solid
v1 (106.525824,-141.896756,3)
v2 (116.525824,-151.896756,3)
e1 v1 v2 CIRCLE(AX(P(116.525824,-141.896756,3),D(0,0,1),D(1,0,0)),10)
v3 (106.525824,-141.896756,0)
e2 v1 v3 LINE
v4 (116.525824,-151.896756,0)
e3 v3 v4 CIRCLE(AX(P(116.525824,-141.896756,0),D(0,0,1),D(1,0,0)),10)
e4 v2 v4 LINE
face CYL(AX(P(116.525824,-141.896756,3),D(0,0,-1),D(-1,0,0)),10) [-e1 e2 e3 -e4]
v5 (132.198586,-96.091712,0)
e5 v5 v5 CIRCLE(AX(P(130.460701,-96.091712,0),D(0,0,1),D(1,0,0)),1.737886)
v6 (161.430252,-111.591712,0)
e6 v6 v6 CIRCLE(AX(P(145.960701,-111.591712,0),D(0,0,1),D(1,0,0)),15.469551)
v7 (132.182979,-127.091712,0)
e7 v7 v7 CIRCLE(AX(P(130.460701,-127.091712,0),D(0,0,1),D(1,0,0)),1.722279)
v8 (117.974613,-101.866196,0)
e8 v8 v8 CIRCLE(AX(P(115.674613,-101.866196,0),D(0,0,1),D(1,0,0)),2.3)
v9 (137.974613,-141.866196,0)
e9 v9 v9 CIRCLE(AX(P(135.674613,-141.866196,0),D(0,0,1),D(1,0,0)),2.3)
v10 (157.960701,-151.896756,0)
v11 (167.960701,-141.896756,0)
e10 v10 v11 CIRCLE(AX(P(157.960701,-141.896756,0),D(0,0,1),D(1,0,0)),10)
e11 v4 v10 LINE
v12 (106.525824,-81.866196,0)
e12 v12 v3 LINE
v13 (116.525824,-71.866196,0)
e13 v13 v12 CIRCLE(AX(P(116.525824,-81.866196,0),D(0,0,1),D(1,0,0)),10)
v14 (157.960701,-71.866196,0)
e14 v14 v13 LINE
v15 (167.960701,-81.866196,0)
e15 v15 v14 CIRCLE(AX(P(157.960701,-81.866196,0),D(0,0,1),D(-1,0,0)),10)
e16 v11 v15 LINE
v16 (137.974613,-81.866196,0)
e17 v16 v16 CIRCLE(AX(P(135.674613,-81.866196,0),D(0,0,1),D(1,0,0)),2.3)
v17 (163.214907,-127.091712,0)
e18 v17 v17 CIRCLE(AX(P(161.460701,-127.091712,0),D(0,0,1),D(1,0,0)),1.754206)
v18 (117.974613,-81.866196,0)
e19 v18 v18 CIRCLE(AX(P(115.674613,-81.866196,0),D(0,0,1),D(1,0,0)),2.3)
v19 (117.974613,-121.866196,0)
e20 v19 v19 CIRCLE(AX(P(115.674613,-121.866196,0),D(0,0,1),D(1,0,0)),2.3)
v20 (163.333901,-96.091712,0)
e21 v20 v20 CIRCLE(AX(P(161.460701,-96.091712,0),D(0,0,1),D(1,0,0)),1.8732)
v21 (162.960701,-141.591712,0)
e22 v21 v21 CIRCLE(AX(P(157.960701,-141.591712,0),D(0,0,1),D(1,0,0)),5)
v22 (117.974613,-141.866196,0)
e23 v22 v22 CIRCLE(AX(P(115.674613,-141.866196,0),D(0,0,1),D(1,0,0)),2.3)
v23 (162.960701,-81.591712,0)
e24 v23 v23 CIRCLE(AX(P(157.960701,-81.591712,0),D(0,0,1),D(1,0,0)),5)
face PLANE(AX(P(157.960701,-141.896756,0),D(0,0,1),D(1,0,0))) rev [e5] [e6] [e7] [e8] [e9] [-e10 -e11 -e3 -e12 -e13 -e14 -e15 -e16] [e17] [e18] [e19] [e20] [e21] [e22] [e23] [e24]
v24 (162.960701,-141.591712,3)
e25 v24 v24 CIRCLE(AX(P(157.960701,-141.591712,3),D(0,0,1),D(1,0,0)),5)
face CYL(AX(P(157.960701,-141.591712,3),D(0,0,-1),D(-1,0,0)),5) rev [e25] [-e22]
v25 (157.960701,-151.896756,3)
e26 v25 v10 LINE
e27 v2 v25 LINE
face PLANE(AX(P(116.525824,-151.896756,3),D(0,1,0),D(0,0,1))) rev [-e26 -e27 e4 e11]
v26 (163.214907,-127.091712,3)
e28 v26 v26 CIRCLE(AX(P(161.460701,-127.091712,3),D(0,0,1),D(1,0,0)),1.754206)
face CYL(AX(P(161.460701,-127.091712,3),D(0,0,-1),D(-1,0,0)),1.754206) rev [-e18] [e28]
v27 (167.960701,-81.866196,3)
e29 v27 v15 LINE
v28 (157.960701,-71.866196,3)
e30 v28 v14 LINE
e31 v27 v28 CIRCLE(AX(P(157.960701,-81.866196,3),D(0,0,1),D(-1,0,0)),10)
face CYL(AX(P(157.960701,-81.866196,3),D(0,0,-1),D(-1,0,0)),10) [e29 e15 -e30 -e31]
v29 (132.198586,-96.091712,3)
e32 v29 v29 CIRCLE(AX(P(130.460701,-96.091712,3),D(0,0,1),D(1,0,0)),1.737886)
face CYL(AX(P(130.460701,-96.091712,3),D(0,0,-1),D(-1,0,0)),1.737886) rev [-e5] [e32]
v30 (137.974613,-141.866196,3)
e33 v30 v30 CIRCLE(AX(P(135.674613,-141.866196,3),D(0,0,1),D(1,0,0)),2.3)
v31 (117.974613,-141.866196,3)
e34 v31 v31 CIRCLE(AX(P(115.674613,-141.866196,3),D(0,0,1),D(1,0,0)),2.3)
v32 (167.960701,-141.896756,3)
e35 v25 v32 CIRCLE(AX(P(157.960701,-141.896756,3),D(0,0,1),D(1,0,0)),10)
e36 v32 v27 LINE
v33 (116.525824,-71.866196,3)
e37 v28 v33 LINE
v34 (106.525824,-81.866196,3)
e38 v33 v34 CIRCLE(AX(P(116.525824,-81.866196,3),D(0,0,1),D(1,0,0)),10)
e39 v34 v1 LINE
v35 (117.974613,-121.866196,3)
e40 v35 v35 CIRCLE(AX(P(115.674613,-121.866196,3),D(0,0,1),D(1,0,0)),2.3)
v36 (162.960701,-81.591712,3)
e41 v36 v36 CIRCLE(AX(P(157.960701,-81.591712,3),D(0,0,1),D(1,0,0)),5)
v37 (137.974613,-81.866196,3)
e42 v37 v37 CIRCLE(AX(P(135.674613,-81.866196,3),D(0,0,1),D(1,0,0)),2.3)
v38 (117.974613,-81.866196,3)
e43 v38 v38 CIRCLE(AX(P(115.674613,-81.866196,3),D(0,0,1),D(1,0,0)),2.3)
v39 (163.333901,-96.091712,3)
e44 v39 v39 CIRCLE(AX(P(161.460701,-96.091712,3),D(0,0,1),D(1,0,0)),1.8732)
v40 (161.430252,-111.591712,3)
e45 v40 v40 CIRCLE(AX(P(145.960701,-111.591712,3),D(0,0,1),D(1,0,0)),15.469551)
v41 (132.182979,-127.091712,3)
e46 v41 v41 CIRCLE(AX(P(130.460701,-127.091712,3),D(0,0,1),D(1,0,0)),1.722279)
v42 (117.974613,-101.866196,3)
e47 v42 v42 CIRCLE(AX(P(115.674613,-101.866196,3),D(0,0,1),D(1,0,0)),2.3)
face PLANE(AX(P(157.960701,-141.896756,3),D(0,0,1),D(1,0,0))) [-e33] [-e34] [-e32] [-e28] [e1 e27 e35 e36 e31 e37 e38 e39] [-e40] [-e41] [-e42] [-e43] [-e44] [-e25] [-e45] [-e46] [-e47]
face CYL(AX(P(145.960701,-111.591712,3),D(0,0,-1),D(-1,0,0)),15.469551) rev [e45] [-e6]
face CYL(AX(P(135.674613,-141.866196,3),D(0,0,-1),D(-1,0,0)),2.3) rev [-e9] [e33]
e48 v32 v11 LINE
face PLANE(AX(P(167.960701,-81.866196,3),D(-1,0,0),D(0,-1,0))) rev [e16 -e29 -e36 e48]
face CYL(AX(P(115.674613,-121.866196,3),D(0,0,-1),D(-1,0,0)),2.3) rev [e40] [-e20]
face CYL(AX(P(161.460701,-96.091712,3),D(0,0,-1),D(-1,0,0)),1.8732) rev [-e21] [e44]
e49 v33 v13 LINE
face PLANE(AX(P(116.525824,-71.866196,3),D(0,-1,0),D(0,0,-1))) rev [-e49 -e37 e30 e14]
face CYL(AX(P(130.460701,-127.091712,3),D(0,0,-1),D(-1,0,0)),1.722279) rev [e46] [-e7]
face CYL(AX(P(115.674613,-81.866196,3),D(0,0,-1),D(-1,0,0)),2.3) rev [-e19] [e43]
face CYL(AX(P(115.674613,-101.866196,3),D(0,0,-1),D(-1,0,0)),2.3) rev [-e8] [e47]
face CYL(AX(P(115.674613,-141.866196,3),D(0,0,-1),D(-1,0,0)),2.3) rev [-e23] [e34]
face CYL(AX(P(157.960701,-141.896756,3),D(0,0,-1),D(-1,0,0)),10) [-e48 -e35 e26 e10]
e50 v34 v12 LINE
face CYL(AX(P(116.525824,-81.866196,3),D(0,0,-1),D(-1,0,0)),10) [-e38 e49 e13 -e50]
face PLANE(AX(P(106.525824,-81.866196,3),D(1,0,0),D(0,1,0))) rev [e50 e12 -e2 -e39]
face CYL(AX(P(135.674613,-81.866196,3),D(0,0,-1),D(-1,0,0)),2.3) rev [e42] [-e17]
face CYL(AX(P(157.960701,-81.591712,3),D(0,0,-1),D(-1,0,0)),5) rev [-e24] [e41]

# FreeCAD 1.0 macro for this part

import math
import FreeCAD as App
import Part
import Sketcher

V = App.Vector

doc = App.newDocument("Part")
params = doc.addObject("Spreadsheet::Sheet", "Params")
for row, (alias, value) in enumerate([
    ("sketch1_diameter", "10 mm"),
    ("sketch1_radius", "10 mm"),
    ("sketch1_diameter2", "4.6 mm"),
    ("pad1_length", "3 mm"),
], start=1):
    params.set(f"A{row}", alias)
    params.set(f"B{row}", "=" + value)
    params.setAlias(f"B{row}", alias)

body = doc.addObject("PartDesign::Body", "Body")

sketch1 = body.newObject("Sketcher::SketchObject", "Sketch")
sketch1.AttachmentSupport = (doc.getObject("XY_Plane"), [""])
sketch1.MapMode = "FlatFace"
sketch1.addGeometry(Part.LineSegment(V(157.960701, -71.866196, 0), V(116.525824, -71.866196, 0)), False)
sketch1.addGeometry(Part.ArcOfCircle(Part.Circle(V(116.525824, -81.866196, 0), V(0, 0, 1), 10), math.radians(90), math.radians(180)), False)
sketch1.addGeometry(Part.LineSegment(V(106.525824, -81.866196, 0), V(106.525824, -141.896756, 0)), False)
sketch1.addGeometry(Part.ArcOfCircle(Part.Circle(V(116.525824, -141.896756, 0), V(0, 0, 1), 10), math.radians(180), math.radians(270)), False)
sketch1.addGeometry(Part.LineSegment(V(116.525824, -151.896756, 0), V(157.960701, -151.896756, 0)), False)
sketch1.addGeometry(Part.ArcOfCircle(Part.Circle(V(157.960701, -141.896756, 0), V(0, 0, 1), 10), math.radians(-90), math.radians(0)), False)
sketch1.addGeometry(Part.LineSegment(V(167.960701, -141.896756, 0), V(167.960701, -81.866196, 0)), False)
sketch1.addGeometry(Part.ArcOfCircle(Part.Circle(V(157.960701, -81.866196, 0), V(0, 0, 1), 10), math.radians(0), math.radians(90)), False)
sketch1.addGeometry(Part.Circle(V(157.960701, -141.591712, 0), V(0, 0, 1), 5), False)
sketch1.addGeometry(Part.Circle(V(161.460701, -127.091712, 0), V(0, 0, 1), 1.754206), False)
sketch1.addGeometry(Part.Circle(V(145.960701, -111.591712, 0), V(0, 0, 1), 15.469551), False)
sketch1.addGeometry(Part.Circle(V(135.674613, -141.866196, 0), V(0, 0, 1), 2.3), False)
sketch1.addGeometry(Part.Circle(V(115.674613, -141.866196, 0), V(0, 0, 1), 2.3), False)
sketch1.addGeometry(Part.Circle(V(130.460701, -127.091712, 0), V(0, 0, 1), 1.722279), False)
sketch1.addGeometry(Part.Circle(V(115.674613, -121.866196, 0), V(0, 0, 1), 2.3), False)
sketch1.addGeometry(Part.Circle(V(161.460701, -96.091712, 0), V(0, 0, 1), 1.8732), False)
sketch1.addGeometry(Part.Circle(V(157.960701, -81.591712, 0), V(0, 0, 1), 5), False)
sketch1.addGeometry(Part.Circle(V(130.460701, -96.091712, 0), V(0, 0, 1), 1.737886), False)
sketch1.addGeometry(Part.Circle(V(115.674613, -101.866196, 0), V(0, 0, 1), 2.3), False)
sketch1.addGeometry(Part.Circle(V(135.674613, -81.866196, 0), V(0, 0, 1), 2.3), False)
sketch1.addGeometry(Part.Circle(V(115.674613, -81.866196, 0), V(0, 0, 1), 2.3), False)
sketch1.addConstraint(Sketcher.Constraint("Tangent", 0, 2, 1, 1))
sketch1.addConstraint(Sketcher.Constraint("Tangent", 1, 2, 2, 1))
sketch1.addConstraint(Sketcher.Constraint("Tangent", 2, 2, 3, 1))
sketch1.addConstraint(Sketcher.Constraint("Tangent", 3, 2, 4, 1))
sketch1.addConstraint(Sketcher.Constraint("Tangent", 4, 2, 5, 1))
sketch1.addConstraint(Sketcher.Constraint("Tangent", 5, 2, 6, 1))
sketch1.addConstraint(Sketcher.Constraint("Tangent", 6, 2, 7, 1))
sketch1.addConstraint(Sketcher.Constraint("Tangent", 7, 2, 0, 1))
sketch1.addConstraint(Sketcher.Constraint("Horizontal", 0))
sketch1.addConstraint(Sketcher.Constraint("Vertical", 2))
sketch1.addConstraint(Sketcher.Constraint("Horizontal", 4))
sketch1.addConstraint(Sketcher.Constraint("Vertical", 6))
sketch1.addConstraint(Sketcher.Constraint("Equal", 1, 3))
sketch1.addConstraint(Sketcher.Constraint("Equal", 3, 5))
sketch1.addConstraint(Sketcher.Constraint("Equal", 5, 7))
sketch1.addConstraint(Sketcher.Constraint("Equal", 11, 12))
sketch1.addConstraint(Sketcher.Constraint("Equal", 12, 14))
sketch1.addConstraint(Sketcher.Constraint("Equal", 8, 16))
sketch1.addConstraint(Sketcher.Constraint("Equal", 14, 18))
sketch1.addConstraint(Sketcher.Constraint("Equal", 18, 19))
sketch1.addConstraint(Sketcher.Constraint("Equal", 19, 20))
sketch1.addConstraint(Sketcher.Constraint("Horizontal", 11, 3, 12, 3))
sketch1.addConstraint(Sketcher.Constraint("Horizontal", 9, 3, 13, 3))
sketch1.addConstraint(Sketcher.Constraint("Horizontal", 15, 3, 17, 3))
sketch1.addConstraint(Sketcher.Constraint("Horizontal", 7, 3, 19, 3))
sketch1.addConstraint(Sketcher.Constraint("Horizontal", 19, 3, 20, 3))
sketch1.addConstraint(Sketcher.Constraint("Vertical", 7, 3, 8, 3))
sketch1.addConstraint(Sketcher.Constraint("Vertical", 12, 3, 14, 3))
sketch1.addConstraint(Sketcher.Constraint("Vertical", 9, 3, 15, 3))
sketch1.addConstraint(Sketcher.Constraint("Vertical", 8, 3, 16, 3))
sketch1.addConstraint(Sketcher.Constraint("Vertical", 13, 3, 17, 3))
sketch1.addConstraint(Sketcher.Constraint("Vertical", 14, 3, 18, 3))
sketch1.addConstraint(Sketcher.Constraint("Vertical", 11, 3, 19, 3))
sketch1.addConstraint(Sketcher.Constraint("Vertical", 18, 3, 20, 3))
sketch1.addConstraint(Sketcher.Constraint("Diameter", 8, 10.0))
sketch1.addConstraint(Sketcher.Constraint("Radius", 1, 10.0))
sketch1.addConstraint(Sketcher.Constraint("Diameter", 11, 4.6))
sketch1.addConstraint(Sketcher.Constraint("DistanceX", 10, 3, 7, 3, 12.0))
sketch1.addConstraint(Sketcher.Constraint("DistanceY", 8, 3, 10, 3, 30.0))
sketch1.addConstraint(Sketcher.Constraint("DistanceX", 12, 3, 11, 3, 20.0))
sketch1.addConstraint(Sketcher.Constraint("DistanceX", 13, 3, 9, 3, 31.0))
sketch1.addConstraint(Sketcher.Constraint("DistanceY", 12, 3, 14, 3, 20.0))
sketch1.addConstraint(Sketcher.Constraint("DistanceY", 9, 3, 15, 3, 31.0))
sketch1.addConstraint(Sketcher.Constraint("DistanceY", 10, 3, 16, 3, 30.0))
sketch1.addConstraint(Sketcher.Constraint("DistanceY", 14, 3, 18, 3, 20.0))
sketch1.addConstraint(Sketcher.Constraint("DistanceY", 18, 3, 1, 3, 20.0))
sketch1.addConstraint(Sketcher.Constraint("Diameter", 15, 3.7464))
sketch1.addConstraint(Sketcher.Constraint("DistanceX", 8, 3, 9, 3, 3.5))
sketch1.addConstraint(Sketcher.Constraint("DistanceY", 8, 3, 9, 3, 14.5))
sketch1.addConstraint(Sketcher.Constraint("Diameter", 9, 3.508412))
sketch1.addConstraint(Sketcher.Constraint("Diameter", 17, 3.475771))
sketch1.addConstraint(Sketcher.Constraint("Diameter", 10, 30.939102))
sketch1.addConstraint(Sketcher.Constraint("Diameter", 13, 3.444557))
sketch1.addConstraint(Sketcher.Constraint("DistanceY", 2, 2, 2, 1, 60.03056))
sketch1.addConstraint(Sketcher.Constraint("DistanceX", -1, 1, 5, 3, 157.960701))
sketch1.addConstraint(Sketcher.Constraint("DistanceX", 0, 2, 0, 1, 41.434877))
sketch1.addConstraint(Sketcher.Constraint("DistanceX", 3, 3, 11, 3, 19.148789))
sketch1.addConstraint(Sketcher.Constraint("DistanceY", 1, 3, -1, 1, 81.866196))
sketch1.addConstraint(Sketcher.Constraint("DistanceY", 8, 3, -1, 1, 141.591712))
sketch1.setExpression("Constraints[34]", "Params.sketch1_diameter")
sketch1.setExpression("Constraints[35]", "Params.sketch1_radius")
sketch1.setExpression("Constraints[36]", "Params.sketch1_diameter2")
pad1 = body.newObject("PartDesign::Pad", "Pad")
pad1.Profile = sketch1
pad1.setExpression("Length", "Params.pad1_length")

doc.recompute()
